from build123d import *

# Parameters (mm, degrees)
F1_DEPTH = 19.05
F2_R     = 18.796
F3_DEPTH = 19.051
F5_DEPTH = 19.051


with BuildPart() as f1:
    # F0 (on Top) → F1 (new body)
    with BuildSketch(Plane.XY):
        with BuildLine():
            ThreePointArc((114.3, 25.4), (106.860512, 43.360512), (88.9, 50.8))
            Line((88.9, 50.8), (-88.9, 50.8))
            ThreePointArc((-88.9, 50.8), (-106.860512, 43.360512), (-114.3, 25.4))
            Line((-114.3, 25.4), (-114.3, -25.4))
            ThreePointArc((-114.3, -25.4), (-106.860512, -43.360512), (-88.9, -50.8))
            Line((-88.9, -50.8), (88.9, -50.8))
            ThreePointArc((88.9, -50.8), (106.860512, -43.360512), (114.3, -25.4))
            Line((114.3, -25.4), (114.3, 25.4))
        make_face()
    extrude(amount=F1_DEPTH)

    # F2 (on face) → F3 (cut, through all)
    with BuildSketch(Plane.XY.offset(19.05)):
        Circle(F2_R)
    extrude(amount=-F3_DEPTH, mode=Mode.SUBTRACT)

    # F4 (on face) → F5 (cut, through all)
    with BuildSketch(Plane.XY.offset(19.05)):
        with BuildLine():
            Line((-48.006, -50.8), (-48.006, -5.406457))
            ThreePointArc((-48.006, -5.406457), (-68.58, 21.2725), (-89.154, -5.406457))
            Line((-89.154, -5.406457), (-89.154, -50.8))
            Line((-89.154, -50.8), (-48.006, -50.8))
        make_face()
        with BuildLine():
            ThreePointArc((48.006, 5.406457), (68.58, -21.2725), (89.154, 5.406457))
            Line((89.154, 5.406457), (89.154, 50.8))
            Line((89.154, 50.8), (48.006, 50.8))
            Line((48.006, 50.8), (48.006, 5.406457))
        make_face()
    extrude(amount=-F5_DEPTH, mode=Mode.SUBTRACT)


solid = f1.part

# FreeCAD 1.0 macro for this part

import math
import FreeCAD as App
import Part
import Sketcher

V = App.Vector
Q = App.Units.Quantity

doc = App.newDocument("Part")
body = doc.addObject("PartDesign::Body", "Body")

# Sketch on XY plane
sketch1 = doc.addObject("Sketcher::SketchObject", "Sketch")
body.addObject(sketch1)
sketch1.AttachmentSupport = (doc.XY_Plane, [""])
sketch1.MapMode = "FlatFace"
sketch1.addGeometry(Part.ArcOfCircle(Part.Circle(V(89, 25, 0), V(0, 0, 1), 25), math.radians(0), math.radians(90)), False)
sketch1.addGeometry(Part.LineSegment(V(89, 51, 0), V(-89, 51, 0)), False)
sketch1.addGeometry(Part.ArcOfCircle(Part.Circle(V(-89, 25, 0), V(0, 0, 1), 25), math.radians(90), math.radians(180)), False)
sketch1.addGeometry(Part.LineSegment(V(-114, 25, 0), V(-114, -25, 0)), False)
sketch1.addGeometry(Part.ArcOfCircle(Part.Circle(V(-89, -25, 0), V(0, 0, 1), 25), math.radians(-180), math.radians(-90)), False)
sketch1.addGeometry(Part.LineSegment(V(-89, -51, 0), V(89, -51, 0)), False)
sketch1.addGeometry(Part.ArcOfCircle(Part.Circle(V(89, -25, 0), V(0, 0, 1), 25), math.radians(-90), math.radians(0)), False)
sketch1.addGeometry(Part.LineSegment(V(114, -25, 0), V(114, 25, 0)), False)
sketch1.addConstraint(Sketcher.Constraint("Tangent", 0, 2, 1, 1))
sketch1.addConstraint(Sketcher.Constraint("Tangent", 1, 2, 2, 1))
sketch1.addConstraint(Sketcher.Constraint("Tangent", 2, 2, 3, 1))
sketch1.addConstraint(Sketcher.Constraint("Tangent", 3, 2, 4, 1))
sketch1.addConstraint(Sketcher.Constraint("Tangent", 4, 2, 5, 1))
sketch1.addConstraint(Sketcher.Constraint("Tangent", 5, 2, 6, 1))
sketch1.addConstraint(Sketcher.Constraint("Tangent", 6, 2, 7, 1))
sketch1.addConstraint(Sketcher.Constraint("Tangent", 7, 2, 0, 1))
sketch1.addConstraint(Sketcher.Constraint("Horizontal", 1))
sketch1.addConstraint(Sketcher.Constraint("Vertical", 3))
sketch1.addConstraint(Sketcher.Constraint("Horizontal", 5))
sketch1.addConstraint(Sketcher.Constraint("Vertical", 7))
sketch1.addConstraint(Sketcher.Constraint("Equal", 0, 2))
sketch1.addConstraint(Sketcher.Constraint("Equal", 2, 4))
sketch1.addConstraint(Sketcher.Constraint("Equal", 4, 6))
sketch1.addConstraint(Sketcher.Constraint("Symmetric", 0, 3, 4, 3, -1, 1))
sketch1.addConstraint(Sketcher.Constraint("Radius", 0, Q("1 in")))
sketch1.addConstraint(Sketcher.Constraint("DistanceX", 1, 2, 1, 1, Q("7 in")))
sketch1.addConstraint(Sketcher.Constraint("DistanceY", 3, 2, 3, 1, Q("2 in")))
pad1 = doc.addObject("PartDesign::Pad", "Pad")
body.addObject(pad1)
pad1.Profile = sketch1
pad1.Length = Q("0.75 in")

# Sketch on XY plane
sketch2 = doc.addObject("Sketcher::SketchObject", "Sketch001")
body.addObject(sketch2)
sketch2.AttachmentSupport = (doc.XY_Plane, [""])
sketch2.MapMode = "FlatFace"
sketch2.AttachmentOffset = App.Placement(V(0, 0, 0.75 * 25.4), App.Rotation())
sketch2.addGeometry(Part.Circle(V(0, 0, 0), V(0, 0, 1), 19), False)
sketch2.addConstraint(Sketcher.Constraint("Coincident", 0, 3, -1, 1))
sketch2.addConstraint(Sketcher.Constraint("Diameter", 0, Q("1.48 in")))
pocket1 = doc.addObject("PartDesign::Pocket", "Pocket")
body.addObject(pocket1)
pocket1.Profile = sketch2
pocket1.Type = "ThroughAll"

# Sketch on XY plane
sketch3 = doc.addObject("Sketcher::SketchObject", "Sketch002")
body.addObject(sketch3)
sketch3.AttachmentSupport = (doc.XY_Plane, [""])
sketch3.MapMode = "FlatFace"
sketch3.AttachmentOffset = App.Placement(V(0, 0, 0.75 * 25.4), App.Rotation())
sketch3.addGeometry(Part.LineSegment(V(-48, -51, 0), V(-48, -5, 0)), False)
sketch3.addGeometry(Part.ArcOfCircle(Part.Circle(V(-69, 0, 0), V(0, 0, 1), 21), math.radians(-15), math.radians(195)), False)
sketch3.addGeometry(Part.LineSegment(V(-89, -5, 0), V(-89, -51, 0)), False)
sketch3.addGeometry(Part.LineSegment(V(-89, -51, 0), V(-48, -51, 0)), False)
sketch3.addGeometry(Part.ArcOfCircle(Part.Circle(V(69, 0, 0), V(0, 0, 1), 21), math.radians(165), math.radians(375)), False)
sketch3.addGeometry(Part.LineSegment(V(89, 5, 0), V(89, 51, 0)), False)
sketch3.addGeometry(Part.LineSegment(V(89, 51, 0), V(48, 51, 0)), False)
sketch3.addGeometry(Part.LineSegment(V(48, 51, 0), V(48, 5, 0)), False)
sketch3.addConstraint(Sketcher.Constraint("Coincident", 0, 2, 1, 1))
sketch3.addConstraint(Sketcher.Constraint("Coincident", 1, 2, 2, 1))
sketch3.addConstraint(Sketcher.Constraint("Coincident", 2, 2, 3, 1))
sketch3.addConstraint(Sketcher.Constraint("Coincident", 3, 2, 0, 1))
sketch3.addConstraint(Sketcher.Constraint("Coincident", 4, 2, 5, 1))
sketch3.addConstraint(Sketcher.Constraint("Coincident", 5, 2, 6, 1))
sketch3.addConstraint(Sketcher.Constraint("Coincident", 6, 2, 7, 1))
sketch3.addConstraint(Sketcher.Constraint("Coincident", 7, 2, 4, 1))
sketch3.addConstraint(Sketcher.Constraint("Vertical", 0))
sketch3.addConstraint(Sketcher.Constraint("Vertical", 2))
sketch3.addConstraint(Sketcher.Constraint("Horizontal", 3))
sketch3.addConstraint(Sketcher.Constraint("Vertical", 5))
sketch3.addConstraint(Sketcher.Constraint("Horizontal", 6))
sketch3.addConstraint(Sketcher.Constraint("Vertical", 7))
sketch3.addConstraint(Sketcher.Constraint("Equal", 1, 4))
sketch3.addConstraint(Sketcher.Constraint("Symmetric", 1, 3, 4, 3, -1, 1))
sketch3.addConstraint(Sketcher.Constraint("Symmetric", 2, 2, 5, 2, -1, 1))
sketch3.addConstraint(Sketcher.Constraint("PointOnObject", 1, 3, -1))
sketch3.addConstraint(Sketcher.Constraint("Horizontal", 0, 2, 1, 2))
sketch3.addConstraint(Sketcher.Constraint("Horizontal", 4, 2, 7, 2))
sketch3.addConstraint(Sketcher.Constraint("DistanceY", 2, 2, -1, 1, Q("2 in")))
sketch3.addConstraint(Sketcher.Constraint("DistanceX", 3, 1, 3, 2, Q("1.62 in")))
sketch3.addConstraint(Sketcher.Constraint("DistanceX", 1, 3, -1, 1, Q("2.7 in")))
sketch3.addConstraint(Sketcher.Constraint("Radius", 1, Q("0.8375 in")))
pocket2 = doc.addObject("PartDesign::Pocket", "Pocket001")
body.addObject(pocket2)
pocket2.Profile = sketch3
pocket2.Type = "ThroughAll"

doc.recompute()
